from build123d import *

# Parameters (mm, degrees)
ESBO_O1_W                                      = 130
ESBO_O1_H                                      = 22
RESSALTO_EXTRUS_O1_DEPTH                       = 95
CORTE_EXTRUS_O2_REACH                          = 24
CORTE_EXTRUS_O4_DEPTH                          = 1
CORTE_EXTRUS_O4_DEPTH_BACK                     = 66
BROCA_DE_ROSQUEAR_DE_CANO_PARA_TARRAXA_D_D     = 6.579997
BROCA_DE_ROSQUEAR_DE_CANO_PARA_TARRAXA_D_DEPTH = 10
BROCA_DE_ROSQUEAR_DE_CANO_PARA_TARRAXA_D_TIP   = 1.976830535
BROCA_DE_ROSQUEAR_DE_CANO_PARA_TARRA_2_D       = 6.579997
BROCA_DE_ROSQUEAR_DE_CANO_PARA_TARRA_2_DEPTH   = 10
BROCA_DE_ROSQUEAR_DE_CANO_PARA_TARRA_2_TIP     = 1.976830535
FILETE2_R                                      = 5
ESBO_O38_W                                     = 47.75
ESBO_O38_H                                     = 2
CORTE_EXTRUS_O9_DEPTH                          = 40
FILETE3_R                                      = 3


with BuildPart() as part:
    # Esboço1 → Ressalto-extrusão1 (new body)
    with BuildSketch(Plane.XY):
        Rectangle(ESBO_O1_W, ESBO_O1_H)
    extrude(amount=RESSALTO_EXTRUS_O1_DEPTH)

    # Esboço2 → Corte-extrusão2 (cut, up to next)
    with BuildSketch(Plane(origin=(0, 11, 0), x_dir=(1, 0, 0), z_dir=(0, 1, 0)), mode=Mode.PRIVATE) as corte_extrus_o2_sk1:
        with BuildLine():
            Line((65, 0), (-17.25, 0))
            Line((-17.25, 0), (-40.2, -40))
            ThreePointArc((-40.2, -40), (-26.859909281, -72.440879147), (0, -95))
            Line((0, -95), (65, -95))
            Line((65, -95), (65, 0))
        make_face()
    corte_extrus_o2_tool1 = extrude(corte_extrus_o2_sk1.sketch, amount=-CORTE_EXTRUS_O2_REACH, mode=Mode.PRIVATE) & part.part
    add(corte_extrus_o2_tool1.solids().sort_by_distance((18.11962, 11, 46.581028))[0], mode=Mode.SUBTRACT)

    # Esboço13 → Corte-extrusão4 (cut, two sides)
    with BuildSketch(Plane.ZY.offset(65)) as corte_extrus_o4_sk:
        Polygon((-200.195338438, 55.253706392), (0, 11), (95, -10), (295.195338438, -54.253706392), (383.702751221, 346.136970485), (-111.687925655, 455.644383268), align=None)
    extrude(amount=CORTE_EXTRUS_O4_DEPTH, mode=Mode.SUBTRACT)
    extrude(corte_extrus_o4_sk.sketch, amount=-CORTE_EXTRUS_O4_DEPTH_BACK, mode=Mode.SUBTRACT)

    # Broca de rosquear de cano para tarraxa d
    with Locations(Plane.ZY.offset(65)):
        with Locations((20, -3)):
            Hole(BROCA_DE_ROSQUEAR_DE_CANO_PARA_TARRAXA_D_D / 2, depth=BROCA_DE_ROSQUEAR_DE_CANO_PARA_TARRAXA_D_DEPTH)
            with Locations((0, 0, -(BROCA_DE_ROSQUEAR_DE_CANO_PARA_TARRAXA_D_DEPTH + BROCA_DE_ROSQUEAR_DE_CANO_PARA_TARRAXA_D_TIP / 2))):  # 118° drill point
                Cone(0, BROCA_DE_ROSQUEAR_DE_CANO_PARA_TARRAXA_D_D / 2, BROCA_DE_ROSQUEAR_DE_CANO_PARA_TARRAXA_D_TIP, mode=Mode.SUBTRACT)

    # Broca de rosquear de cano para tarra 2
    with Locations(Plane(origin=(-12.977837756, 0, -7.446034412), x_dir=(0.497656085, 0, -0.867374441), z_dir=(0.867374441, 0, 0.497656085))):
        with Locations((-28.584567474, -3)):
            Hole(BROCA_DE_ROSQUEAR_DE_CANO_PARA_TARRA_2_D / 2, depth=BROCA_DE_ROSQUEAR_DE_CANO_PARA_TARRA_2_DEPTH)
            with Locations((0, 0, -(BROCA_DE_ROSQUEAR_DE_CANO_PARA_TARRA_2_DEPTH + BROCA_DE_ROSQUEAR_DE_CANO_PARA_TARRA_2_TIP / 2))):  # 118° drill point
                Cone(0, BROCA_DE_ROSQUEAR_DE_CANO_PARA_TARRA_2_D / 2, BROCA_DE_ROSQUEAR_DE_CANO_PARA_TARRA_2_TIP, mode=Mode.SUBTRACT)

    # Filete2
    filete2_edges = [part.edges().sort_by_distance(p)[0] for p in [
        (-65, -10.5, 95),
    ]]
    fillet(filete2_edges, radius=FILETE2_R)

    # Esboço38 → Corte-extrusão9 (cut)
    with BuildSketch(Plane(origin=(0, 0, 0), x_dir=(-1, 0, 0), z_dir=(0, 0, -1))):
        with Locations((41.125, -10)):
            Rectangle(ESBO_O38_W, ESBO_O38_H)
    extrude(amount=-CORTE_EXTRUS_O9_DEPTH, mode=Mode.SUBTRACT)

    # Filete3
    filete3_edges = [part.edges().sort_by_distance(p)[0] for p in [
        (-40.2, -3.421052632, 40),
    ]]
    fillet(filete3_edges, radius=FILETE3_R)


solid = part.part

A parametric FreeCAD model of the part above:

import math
import FreeCAD as App
import Part
import Sketcher

V = App.Vector


def edges_at(feature, points):
    """Names of the edges that pass closest to the given points."""
    edges = feature.Shape.Edges
    near = lambda p: min(range(len(edges)), key=lambda i: edges[i].distToShape(Part.Vertex(*p))[0])
    return sorted({f"Edge{near(p) + 1}" for p in points})


def add_polygon(sketch, points):
    """Adds a closed chain of lines whose ends are joined by coincident constraints."""
    first, n = sketch.GeometryCount, len(points)
    for a, b in zip(points, points[1:] + points[:1]):
        sketch.addGeometry(Part.LineSegment(App.Vector(*a, 0), App.Vector(*b, 0)), False)
    for i in range(n):
        sketch.addConstraint(Sketcher.Constraint("Coincident", first + i, 2, first + (i + 1) % n, 1))

doc = App.newDocument("Part")
body = doc.addObject("PartDesign::Body", "Body")

# Sketch on XY plane
sketch1 = body.newObject("Sketcher::SketchObject", "Sketch")
sketch1.AttachmentSupport = (doc.getObject("XY_Plane"), [""])
sketch1.MapMode = "FlatFace"
add_polygon(sketch1, [(-65, 11), (-65, -11), (65, -11), (65, 11)])  # lines 0-3
sketch1.addConstraint([
    Sketcher.Constraint("Vertical", 0),
    Sketcher.Constraint("Horizontal", 1),
    Sketcher.Constraint("Vertical", 2),
    Sketcher.Constraint("Horizontal", 3),
    Sketcher.Constraint("Symmetric", 0, 2, 2, 2, -1, 1),
    Sketcher.Constraint("DistanceX", 1, 1, 1, 2, 130.0),
    Sketcher.Constraint("DistanceY", 0, 2, 0, 1, 22.0),
])
pad1 = body.newObject("PartDesign::Pad", "Pad")
pad1.Profile = sketch1
pad1.Length = 95

# Sketch on XZ plane
sketch2 = body.newObject("Sketcher::SketchObject", "Sketch001")
sketch2.AttachmentSupport = (doc.getObject("XZ_Plane"), [""])
sketch2.MapMode = "FlatFace"
sketch2.AttachmentOffset = App.Placement(V(0, 0, -11), App.Rotation())
sketch2.addGeometry([
    Part.LineSegment(V(65, 0, 0), V(-17, 0, 0)),  # 0
    Part.LineSegment(V(-17, 0, 0), V(-40, 40, 0)),  # 1
    Part.ArcOfCircle(Part.Circle(V(32, 29, 0), V(0, 0, 1), 73), math.radians(116), math.radians(171)),  # 2
    Part.LineSegment(V(0, 95, 0), V(65, 95, 0)),  # 3
    Part.LineSegment(V(65, 95, 0), V(65, 0, 0)),  # 4
], False)
sketch2.addConstraint([
    Sketcher.Constraint("Coincident", 0, 2, 1, 1),
    Sketcher.Constraint("Coincident", 1, 2, 2, 2),
    Sketcher.Constraint("Coincident", 2, 1, 3, 1),
    Sketcher.Constraint("Coincident", 3, 2, 4, 1),
    Sketcher.Constraint("Coincident", 4, 2, 0, 1),
    Sketcher.Constraint("Horizontal", 0),
    Sketcher.Constraint("Horizontal", 3),
    Sketcher.Constraint("Vertical", 4),
    Sketcher.Constraint("PointOnObject", 0, 2, -1),
    Sketcher.Constraint("PointOnObject", 2, 1, -2),
    Sketcher.Constraint("DistanceX", 3, 1, 3, 2, 65.0),
    Sketcher.Constraint("DistanceY", 4, 2, 4, 1, 95.0),
    Sketcher.Constraint("DistanceY", -1, 1, 1, 2, 40.0),
    Sketcher.Constraint("DistanceX", 0, 2, 0, 1, 82.25),
    Sketcher.Constraint("DistanceX", 1, 2, -1, 1, 40.2),
    Sketcher.Constraint("Radius", 2, 73.471589),
])
pocket1 = body.newObject("PartDesign::Pocket", "Pocket")
pocket1.Profile = sketch2
pocket1.Type = "UpToFirst"
pocket1.Reversed = True

# Sketch on YZ plane
sketch3 = body.newObject("Sketcher::SketchObject", "Sketch002")
sketch3.AttachmentSupport = (doc.getObject("YZ_Plane"), [""])
sketch3.MapMode = "FlatFace"
sketch3.AttachmentOffset = App.Placement(V(0, 0, -65), App.Rotation())
add_polygon(sketch3, [(55, -200), (11, 0), (-10, 95), (-54, 295), (346, 384), (456, -112)])  # lines 0-5
sketch3.addConstraint([
    Sketcher.Constraint("PointOnObject", 0, 2, -1),
    Sketcher.Constraint("Parallel", 0, 1),
    Sketcher.Constraint("Parallel", 1, 2),
    Sketcher.Constraint("Perpendicular", 2, 3),
    Sketcher.Constraint("Perpendicular", 3, 4),
    Sketcher.Constraint("Perpendicular", 4, 5),
    Sketcher.Constraint("Equal", 0, 2),
    Sketcher.Constraint("DistanceX", -1, 1, 0, 2, 11.0),
    Sketcher.Constraint("DistanceX", 1, 2, -1, 1, 10.0),
    Sketcher.Constraint("DistanceY", -1, 1, 1, 2, 95.0),
    Sketcher.Constraint("DistanceY", -1, 1, 2, 2, 295.195338),
    Sketcher.Constraint("DistanceX", -1, 1, 3, 2, 346.13697),
])
pocket2 = body.newObject("PartDesign::Pocket", "Pocket001")
pocket2.Profile = sketch3
pocket2.Type = "ThroughAll"
pocket2.Midplane = True

# Sketch on YZ plane
sketch4 = body.newObject("Sketcher::SketchObject", "Sketch003")
sketch4.AttachmentSupport = (doc.getObject("YZ_Plane"), [""])
sketch4.MapMode = "FlatFace"
sketch4.AttachmentOffset = App.Placement(V(0, 0, -65), App.Rotation())
sketch4.addGeometry(Part.Circle(V(-3, 20, 0), V(0, 0, 1), 3.3), False)
sketch4.addConstraint([
    Sketcher.Constraint("DistanceX", 0, 3, -1, 1, 3.0),
    Sketcher.Constraint("DistanceY", -1, 1, 0, 3, 20.0),
    Sketcher.Constraint("Diameter", 0, 6.579997),
])
doc.recompute()
hole = body.newObject("PartDesign::Hole", "Hole")
hole.Profile = sketch4
hole.ThreadType = "None"
hole.Diameter = 6.579997
hole.DepthType = "Dimension"
hole.Depth = 10
hole.DrillPoint = "Angled"
hole.DrillPointAngle = 118
hole.Reversed = True

# Sketch on an angled plane
sketch5 = body.newObject("Sketcher::SketchObject", "Sketch004")
sketch5.Placement = App.Placement(V(-12.977838, 0, -7.446034), App.Rotation(V(0.497656085, 0, -0.867374441), V(0, 1, 0), V(0.867374441, 0, 0.497656085), "ZXY"))
sketch5.addGeometry(Part.Circle(V(-28.6, -3, 0), V(0, 0, 1), 3.3), False)
sketch5.addConstraint([
    Sketcher.Constraint("DistanceY", 0, 3, -1, 1, 3.0),
    Sketcher.Constraint("Diameter", 0, 6.579997),
    Sketcher.Constraint("DistanceX", 0, 3, -1, 1, 28.584567),
])
doc.recompute()
hole2 = body.newObject("PartDesign::Hole", "Hole001")
hole2.Profile = sketch5
hole2.ThreadType = "None"
hole2.Diameter = 6.579997
hole2.DepthType = "Dimension"
hole2.Depth = 10
hole2.DrillPoint = "Angled"
hole2.DrillPointAngle = 118
doc.recompute()

fillet = body.newObject("PartDesign::Fillet", "Fillet")
fillet.Base = (hole2, edges_at(hole2, [(-65, -10.5, 95)]))
fillet.Radius = 5

# Sketch on XY plane
sketch6 = body.newObject("Sketcher::SketchObject", "Sketch005")
sketch6.AttachmentSupport = (doc.getObject("XY_Plane"), [""])
sketch6.MapMode = "FlatFace"
add_polygon(sketch6, [(-17.2, -9), (-17.2, -11), (-65, -11), (-65, -9)])  # lines 0-3
sketch6.addConstraint([
    Sketcher.Constraint("Vertical", 0),
    Sketcher.Constraint("Horizontal", 1),
    Sketcher.Constraint("Vertical", 2),
    Sketcher.Constraint("Horizontal", 3),
    Sketcher.Constraint("DistanceY", 0, 2, 0, 1, 2.0),
    Sketcher.Constraint("DistanceY", 0, 2, -1, 1, 11.0),
    Sketcher.Constraint("DistanceX", 1, 2, -1, 1, 65.0),
    Sketcher.Constraint("DistanceX", 1, 2, 1, 1, 47.75),
])
pocket3 = body.newObject("PartDesign::Pocket", "Pocket002")
pocket3.Profile = sketch6
pocket3.Length = 40
pocket3.Reversed = True
doc.recompute()

fillet2 = body.newObject("PartDesign::Fillet", "Fillet001")
fillet2.Base = (pocket3, edges_at(pocket3, [(-40.2, -3.421, 40)]))
fillet2.Radius = 3

doc.recompute()
